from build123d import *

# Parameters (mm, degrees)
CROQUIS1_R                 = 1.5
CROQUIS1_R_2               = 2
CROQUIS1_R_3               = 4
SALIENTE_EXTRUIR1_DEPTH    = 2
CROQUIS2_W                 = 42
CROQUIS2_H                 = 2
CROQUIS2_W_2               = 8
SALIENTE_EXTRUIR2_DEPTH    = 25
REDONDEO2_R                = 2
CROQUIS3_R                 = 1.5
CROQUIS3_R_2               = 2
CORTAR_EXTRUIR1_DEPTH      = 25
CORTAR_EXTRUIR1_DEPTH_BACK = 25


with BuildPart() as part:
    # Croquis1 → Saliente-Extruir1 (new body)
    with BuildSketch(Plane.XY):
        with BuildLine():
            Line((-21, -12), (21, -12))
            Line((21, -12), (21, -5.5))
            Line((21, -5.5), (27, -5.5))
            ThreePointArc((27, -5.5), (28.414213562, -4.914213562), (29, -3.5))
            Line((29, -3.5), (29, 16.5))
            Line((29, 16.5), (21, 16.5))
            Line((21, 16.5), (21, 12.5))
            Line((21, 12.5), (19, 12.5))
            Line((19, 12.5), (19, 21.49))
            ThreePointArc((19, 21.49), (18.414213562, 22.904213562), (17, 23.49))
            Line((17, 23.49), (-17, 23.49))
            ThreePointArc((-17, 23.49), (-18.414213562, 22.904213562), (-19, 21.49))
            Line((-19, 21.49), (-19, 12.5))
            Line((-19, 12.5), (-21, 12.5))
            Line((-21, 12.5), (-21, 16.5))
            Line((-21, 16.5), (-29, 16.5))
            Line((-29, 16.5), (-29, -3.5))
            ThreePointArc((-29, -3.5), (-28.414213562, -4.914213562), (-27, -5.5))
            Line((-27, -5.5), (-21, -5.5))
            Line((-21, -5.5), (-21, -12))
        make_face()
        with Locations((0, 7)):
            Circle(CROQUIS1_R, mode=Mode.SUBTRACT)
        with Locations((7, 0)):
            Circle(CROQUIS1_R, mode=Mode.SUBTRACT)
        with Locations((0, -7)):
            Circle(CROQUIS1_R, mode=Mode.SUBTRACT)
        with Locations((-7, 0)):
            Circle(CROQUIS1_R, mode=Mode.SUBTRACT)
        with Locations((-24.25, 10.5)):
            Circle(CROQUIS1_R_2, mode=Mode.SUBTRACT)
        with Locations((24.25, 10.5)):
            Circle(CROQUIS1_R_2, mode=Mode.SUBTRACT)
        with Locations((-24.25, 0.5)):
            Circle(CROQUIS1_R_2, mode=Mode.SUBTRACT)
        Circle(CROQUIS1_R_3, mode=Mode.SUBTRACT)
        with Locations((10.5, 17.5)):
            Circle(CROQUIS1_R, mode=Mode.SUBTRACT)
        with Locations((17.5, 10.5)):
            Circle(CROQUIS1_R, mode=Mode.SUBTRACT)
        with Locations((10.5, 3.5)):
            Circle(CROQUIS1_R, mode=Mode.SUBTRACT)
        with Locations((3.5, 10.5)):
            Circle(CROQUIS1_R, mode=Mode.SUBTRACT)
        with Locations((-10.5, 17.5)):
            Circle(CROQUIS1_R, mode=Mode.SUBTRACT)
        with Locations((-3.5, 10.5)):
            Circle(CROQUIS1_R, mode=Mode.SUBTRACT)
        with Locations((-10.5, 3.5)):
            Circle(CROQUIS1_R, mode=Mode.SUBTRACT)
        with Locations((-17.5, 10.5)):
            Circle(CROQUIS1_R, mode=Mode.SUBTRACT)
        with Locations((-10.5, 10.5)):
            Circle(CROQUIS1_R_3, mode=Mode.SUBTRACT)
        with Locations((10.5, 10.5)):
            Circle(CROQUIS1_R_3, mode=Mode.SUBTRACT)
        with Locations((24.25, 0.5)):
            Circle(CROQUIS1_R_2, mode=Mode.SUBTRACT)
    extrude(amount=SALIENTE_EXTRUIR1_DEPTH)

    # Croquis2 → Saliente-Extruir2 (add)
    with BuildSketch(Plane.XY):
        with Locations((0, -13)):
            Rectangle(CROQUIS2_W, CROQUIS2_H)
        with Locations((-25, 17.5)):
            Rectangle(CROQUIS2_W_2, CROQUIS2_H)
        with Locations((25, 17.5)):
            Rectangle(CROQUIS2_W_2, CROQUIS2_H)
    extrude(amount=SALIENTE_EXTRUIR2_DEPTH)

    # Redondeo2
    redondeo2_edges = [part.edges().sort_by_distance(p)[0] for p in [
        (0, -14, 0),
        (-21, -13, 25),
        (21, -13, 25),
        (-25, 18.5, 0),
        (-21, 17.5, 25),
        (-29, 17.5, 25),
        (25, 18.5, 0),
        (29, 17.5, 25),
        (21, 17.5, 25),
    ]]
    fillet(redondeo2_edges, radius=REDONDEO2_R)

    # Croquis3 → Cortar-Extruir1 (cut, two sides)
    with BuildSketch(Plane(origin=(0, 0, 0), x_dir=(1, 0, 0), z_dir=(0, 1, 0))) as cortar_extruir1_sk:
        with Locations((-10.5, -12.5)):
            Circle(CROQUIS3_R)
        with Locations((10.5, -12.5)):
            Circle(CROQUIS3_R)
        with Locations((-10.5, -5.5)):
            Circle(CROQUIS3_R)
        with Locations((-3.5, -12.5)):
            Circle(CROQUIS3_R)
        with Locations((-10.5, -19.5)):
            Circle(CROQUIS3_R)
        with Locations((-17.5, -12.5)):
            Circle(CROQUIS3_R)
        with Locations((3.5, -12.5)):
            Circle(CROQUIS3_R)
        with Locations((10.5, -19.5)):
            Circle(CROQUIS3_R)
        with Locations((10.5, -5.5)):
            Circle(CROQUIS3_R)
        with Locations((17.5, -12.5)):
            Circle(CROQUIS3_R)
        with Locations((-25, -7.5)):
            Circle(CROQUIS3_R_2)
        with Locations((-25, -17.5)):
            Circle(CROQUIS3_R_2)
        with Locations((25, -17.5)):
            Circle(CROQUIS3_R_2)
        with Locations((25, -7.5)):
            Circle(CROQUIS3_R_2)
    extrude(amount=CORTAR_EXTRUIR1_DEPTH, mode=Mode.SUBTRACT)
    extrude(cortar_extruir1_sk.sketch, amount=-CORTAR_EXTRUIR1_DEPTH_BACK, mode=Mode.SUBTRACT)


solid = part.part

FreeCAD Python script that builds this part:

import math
import FreeCAD as App
import Part
import Sketcher
from FreeCAD import Vector


def edges_at(feature, points):
    """Names of the edges that pass closest to the given points."""
    edges = feature.Shape.Edges
    near = lambda p: min(range(len(edges)), key=lambda i: edges[i].distToShape(Part.Vertex(*p))[0])
    return sorted({f"Edge{near(p) + 1}" for p in points})


def add_polygon(sketch, points):
    """Adds a closed chain of lines whose ends are joined by coincident constraints."""
    first, n = sketch.GeometryCount, len(points)
    for a, b in zip(points, points[1:] + points[:1]):
        sketch.addGeometry(Part.LineSegment(App.Vector(*a, 0), App.Vector(*b, 0)), False)
    for i in range(n):
        sketch.addConstraint(Sketcher.Constraint("Coincident", first + i, 2, first + (i + 1) % n, 1))

doc = App.newDocument("Part")
params = doc.addObject("Spreadsheet::Sheet", "Params")
for row, (alias, value) in enumerate([
    ("sketch1_diameter", "4 mm"),
    ("sketch1_diameter2", "3 mm"),
    ("sketch1_diameter3", "8 mm"),
    ("sketch1_width", "42 mm"),
    ("sketch1_width2", "6 mm"),
    ("pad1_length", "2 mm"),
    ("sketch2_width", "42 mm"),
    ("sketch2_width2", "8 mm"),
    ("sketch2_height", "2 mm"),
    ("pad2_length", "25 mm"),
    ("fillet_radius", "2 mm"),
    ("sketch3_diameter", "3 mm"),
    ("sketch3_diameter2", "4 mm"),
], start=1):
    params.set(f"A{row}", alias)
    params.set(f"B{row}", "=" + value)
    params.setAlias(f"B{row}", alias)

body = doc.addObject("PartDesign::Body", "Body")

# Sketch on XY plane
sketch1 = body.newObject("Sketcher::SketchObject", "Sketch")
sketch1.AttachmentSupport = (doc.getObject("XY_Plane"), [""])
sketch1.MapMode = "FlatFace"
sketch1.addGeometry(Part.LineSegment(Vector(-21, -12, 0), Vector(21, -12, 0)), False)
sketch1.addGeometry(Part.LineSegment(Vector(21, -12, 0), Vector(21, -5.5, 0)), False)
sketch1.addGeometry(Part.LineSegment(Vector(21, -5.5, 0), Vector(27, -5.5, 0)), False)
sketch1.addGeometry(Part.ArcOfCircle(Part.Circle(Vector(27, -3.5, 0), Vector(0, 0, 1), 2), math.radians(-90), math.radians(0)), False)
sketch1.addGeometry(Part.LineSegment(Vector(29, -3.5, 0), Vector(29, 16.5, 0)), False)
sketch1.addGeometry(Part.LineSegment(Vector(29, 16.5, 0), Vector(21, 16.5, 0)), False)
sketch1.addGeometry(Part.LineSegment(Vector(21, 16.5, 0), Vector(21, 12.5, 0)), False)
sketch1.addGeometry(Part.LineSegment(Vector(21, 12.5, 0), Vector(19, 12.5, 0)), False)
sketch1.addGeometry(Part.LineSegment(Vector(19, 12.5, 0), Vector(19, 21.5, 0)), False)
sketch1.addGeometry(Part.ArcOfCircle(Part.Circle(Vector(17, 21.5, 0), Vector(0, 0, 1), 2), math.radians(0), math.radians(90)), False)
sketch1.addGeometry(Part.LineSegment(Vector(17, 23.5, 0), Vector(-17, 23.5, 0)), False)
sketch1.addGeometry(Part.ArcOfCircle(Part.Circle(Vector(-17, 21.5, 0), Vector(0, 0, 1), 2), math.radians(90), math.radians(180)), False)
sketch1.addGeometry(Part.LineSegment(Vector(-19, 21.5, 0), Vector(-19, 12.5, 0)), False)
sketch1.addGeometry(Part.LineSegment(Vector(-19, 12.5, 0), Vector(-21, 12.5, 0)), False)
sketch1.addGeometry(Part.LineSegment(Vector(-21, 12.5, 0), Vector(-21, 16.5, 0)), False)
sketch1.addGeometry(Part.LineSegment(Vector(-21, 16.5, 0), Vector(-29, 16.5, 0)), False)
sketch1.addGeometry(Part.LineSegment(Vector(-29, 16.5, 0), Vector(-29, -3.5, 0)), False)
sketch1.addGeometry(Part.ArcOfCircle(Part.Circle(Vector(-27, -3.5, 0), Vector(0, 0, 1), 2), math.radians(-180), math.radians(-90)), False)
sketch1.addGeometry(Part.LineSegment(Vector(-27, -5.5, 0), Vector(-21, -5.5, 0)), False)
sketch1.addGeometry(Part.LineSegment(Vector(-21, -5.5, 0), Vector(-21, -12, 0)), False)
sketch1.addGeometry(Part.Circle(Vector(-24.2, 0.5, 0), Vector(0, 0, 1), 2), False)
sketch1.addGeometry(Part.Circle(Vector(-7, 0, 0), Vector(0, 0, 1), 1.5), False)
sketch1.addGeometry(Part.Circle(Vector(-10.5, 3.5, 0), Vector(0, 0, 1), 1.5), False)
sketch1.addGeometry(Part.Circle(Vector(0, -7, 0), Vector(0, 0, 1), 1.5), False)
sketch1.addGeometry(Part.Circle(Vector(0, 0, 0), Vector(0, 0, 1), 4), False)
sketch1.addGeometry(Part.Circle(Vector(7, 0, 0), Vector(0, 0, 1), 1.5), False)
sketch1.addGeometry(Part.Circle(Vector(10.5, 3.5, 0), Vector(0, 0, 1), 1.5), False)
sketch1.addGeometry(Part.Circle(Vector(24.2, 0.5, 0), Vector(0, 0, 1), 2), False)
sketch1.addGeometry(Part.Circle(Vector(-24.2, 10.5, 0), Vector(0, 0, 1), 2), False)
sketch1.addGeometry(Part.Circle(Vector(-17.5, 10.5, 0), Vector(0, 0, 1), 1.5), False)
sketch1.addGeometry(Part.Circle(Vector(-10.5, 10.5, 0), Vector(0, 0, 1), 4), False)
sketch1.addGeometry(Part.Circle(Vector(-3.5, 10.5, 0), Vector(0, 0, 1), 1.5), False)
sketch1.addGeometry(Part.Circle(Vector(-10.5, 17.5, 0), Vector(0, 0, 1), 1.5), False)
sketch1.addGeometry(Part.Circle(Vector(0, 7, 0), Vector(0, 0, 1), 1.5), False)
sketch1.addGeometry(Part.Circle(Vector(3.5, 10.5, 0), Vector(0, 0, 1), 1.5), False)
sketch1.addGeometry(Part.Circle(Vector(10.5, 10.5, 0), Vector(0, 0, 1), 4), False)
sketch1.addGeometry(Part.Circle(Vector(17.5, 10.5, 0), Vector(0, 0, 1), 1.5), False)
sketch1.addGeometry(Part.Circle(Vector(24.2, 10.5, 0), Vector(0, 0, 1), 2), False)
sketch1.addGeometry(Part.Circle(Vector(10.5, 17.5, 0), Vector(0, 0, 1), 1.5), False)
sketch1.addConstraint(Sketcher.Constraint("Coincident", 0, 2, 1, 1))
sketch1.addConstraint(Sketcher.Constraint("Coincident", 1, 2, 2, 1))
sketch1.addConstraint(Sketcher.Constraint("Tangent", 2, 2, 3, 1))
sketch1.addConstraint(Sketcher.Constraint("Tangent", 3, 2, 4, 1))
sketch1.addConstraint(Sketcher.Constraint("Coincident", 4, 2, 5, 1))
sketch1.addConstraint(Sketcher.Constraint("Coincident", 5, 2, 6, 1))
sketch1.addConstraint(Sketcher.Constraint("Coincident", 6, 2, 7, 1))
sketch1.addConstraint(Sketcher.Constraint("Coincident", 7, 2, 8, 1))
sketch1.addConstraint(Sketcher.Constraint("Tangent", 8, 2, 9, 1))
sketch1.addConstraint(Sketcher.Constraint("Tangent", 9, 2, 10, 1))
sketch1.addConstraint(Sketcher.Constraint("Tangent", 10, 2, 11, 1))
sketch1.addConstraint(Sketcher.Constraint("Tangent", 11, 2, 12, 1))
sketch1.addConstraint(Sketcher.Constraint("Coincident", 12, 2, 13, 1))
sketch1.addConstraint(Sketcher.Constraint("Coincident", 13, 2, 14, 1))
sketch1.addConstraint(Sketcher.Constraint("Coincident", 14, 2, 15, 1))
sketch1.addConstraint(Sketcher.Constraint("Coincident", 15, 2, 16, 1))
sketch1.addConstraint(Sketcher.Constraint("Tangent", 16, 2, 17, 1))
sketch1.addConstraint(Sketcher.Constraint("Tangent", 17, 2, 18, 1))
sketch1.addConstraint(Sketcher.Constraint("Coincident", 18, 2, 19, 1))
sketch1.addConstraint(Sketcher.Constraint("Coincident", 19, 2, 0, 1))
sketch1.addConstraint(Sketcher.Constraint("Horizontal", 0))
sketch1.addConstraint(Sketcher.Constraint("Vertical", 1))
sketch1.addConstraint(Sketcher.Constraint("Horizontal", 2))
sketch1.addConstraint(Sketcher.Constraint("Vertical", 4))
sketch1.addConstraint(Sketcher.Constraint("Horizontal", 5))
sketch1.addConstraint(Sketcher.Constraint("Vertical", 6))
sketch1.addConstraint(Sketcher.Constraint("Horizontal", 7))
sketch1.addConstraint(Sketcher.Constraint("Vertical", 8))
sketch1.addConstraint(Sketcher.Constraint("Horizontal", 10))
sketch1.addConstraint(Sketcher.Constraint("Vertical", 12))
sketch1.addConstraint(Sketcher.Constraint("Horizontal", 13))
sketch1.addConstraint(Sketcher.Constraint("Vertical", 14))
sketch1.addConstraint(Sketcher.Constraint("Horizontal", 15))
sketch1.addConstraint(Sketcher.Constraint("Vertical", 16))
sketch1.addConstraint(Sketcher.Constraint("Horizontal", 18))
sketch1.addConstraint(Sketcher.Constraint("Vertical", 19))
sketch1.addConstraint(Sketcher.Constraint("Coincident", 24, 3, -1, 1))
sketch1.addConstraint(Sketcher.Constraint("Equal", 3, 9))
sketch1.addConstraint(Sketcher.Constraint("Equal", 9, 11))
sketch1.addConstraint(Sketcher.Constraint("Equal", 11, 17))
sketch1.addConstraint(Sketcher.Constraint("Equal", 17, 20))
sketch1.addConstraint(Sketcher.Constraint("Equal", 21, 22))
sketch1.addConstraint(Sketcher.Constraint("Equal", 22, 23))
sketch1.addConstraint(Sketcher.Constraint("Equal", 23, 25))
sketch1.addConstraint(Sketcher.Constraint("Equal", 25, 26))
sketch1.addConstraint(Sketcher.Constraint("Equal", 20, 27))
sketch1.addConstraint(Sketcher.Constraint("Equal", 27, 28))
sketch1.addConstraint(Sketcher.Constraint("Equal", 26, 29))
sketch1.addConstraint(Sketcher.Constraint("Equal", 24, 30))
sketch1.addConstraint(Sketcher.Constraint("Equal", 29, 31))
sketch1.addConstraint(Sketcher.Constraint("Equal", 31, 32))
sketch1.addConstraint(Sketcher.Constraint("Equal", 32, 33))
sketch1.addConstraint(Sketcher.Constraint("Equal", 33, 34))
sketch1.addConstraint(Sketcher.Constraint("Equal", 30, 35))
sketch1.addConstraint(Sketcher.Constraint("Equal", 34, 36))
sketch1.addConstraint(Sketcher.Constraint("Equal", 28, 37))
sketch1.addConstraint(Sketcher.Constraint("Equal", 36, 38))
sketch1.addConstraint(Sketcher.Constraint("Symmetric", 21, 3, 25, 3, -1, 1))
sketch1.addConstraint(Sketcher.Constraint("Symmetric", 23, 3, 33, 3, -1, 1))
sketch1.addConstraint(Sketcher.Constraint("Symmetric", 3, 3, 17, 3, -2))
sketch1.addConstraint(Sketcher.Constraint("Symmetric", 22, 3, 26, 3, -2))
sketch1.addConstraint(Sketcher.Constraint("Symmetric", 20, 3, 27, 3, -2))
sketch1.addConstraint(Sketcher.Constraint("Symmetric", 31, 3, 34, 3, -2))
sketch1.addConstraint(Sketcher.Constraint("Symmetric", 30, 3, 35, 3, -2))
sketch1.addConstraint(Sketcher.Constraint("Symmetric", 29, 3, 36, 3, -2))
sketch1.addConstraint(Sketcher.Constraint("Symmetric", 28, 3, 37, 3, -2))
sketch1.addConstraint(Sketcher.Constraint("Symmetric", 32, 3, 38, 3, -2))
sketch1.addConstraint(Sketcher.Constraint("Symmetric", 7, 2, 12, 2, -2))
sketch1.addConstraint(Sketcher.Constraint("Symmetric", 5, 2, 14, 2, -2))
sketch1.addConstraint(Sketcher.Constraint("PointOnObject", 21, 3, -1))
sketch1.addConstraint(Sketcher.Constraint("PointOnObject", 23, 3, -2))
sketch1.addConstraint(Sketcher.Constraint("Horizontal", 28, 3, 29, 3))
sketch1.addConstraint(Sketcher.Constraint("Horizontal", 29, 3, 30, 3))
sketch1.addConstraint(Sketcher.Constraint("Horizontal", 30, 3, 31, 3))
sketch1.addConstraint(Sketcher.Constraint("Vertical", 20, 3, 28, 3))
sketch1.addConstraint(Sketcher.Constraint("Vertical", 22, 3, 30, 3))
sketch1.addConstraint(Sketcher.Constraint("Vertical", 30, 3, 32, 3))
sketch1.addConstraint(Sketcher.Constraint("Vertical", 1, 2, 5, 2))
sketch1.addConstraint(Sketcher.Constraint("Vertical", 14, 2, 18, 2))
sketch1.addConstraint(Sketcher.Constraint("Diameter", 20, 4.0))
sketch1.addConstraint(Sketcher.Constraint("Diameter", 21, 3.0))
sketch1.addConstraint(Sketcher.Constraint("Diameter", 24, 8.0))
sketch1.addConstraint(Sketcher.Constraint("DistanceX", 0, 1, 0, 2, 42.0))
sketch1.addConstraint(Sketcher.Constraint("DistanceX", 2, 1, 2, 2, 6.0))
sketch1.addConstraint(Sketcher.Constraint("DistanceX", 7, 2, 7, 1, 2.0))
sketch1.addConstraint(Sketcher.Constraint("DistanceY", 4, 1, 4, 2, 20.0))
sketch1.addConstraint(Sketcher.Constraint("DistanceY", 6, 2, 6, 1, 4.0))
sketch1.addConstraint(Sketcher.Constraint("DistanceY", 1, 1, 1, 2, 6.5))
sketch1.addConstraint(Sketcher.Constraint("DistanceX", 21, 3, -1, 1, 7.0))
sketch1.addConstraint(Sketcher.Constraint("DistanceY", 23, 3, -1, 1, 7.0))
sketch1.addConstraint(Sketcher.Constraint("DistanceY", 0, 2, -1, 1, 12.0))
sketch1.addConstraint(Sketcher.Constraint("DistanceY", 17, 3, 20, 3, 4.0))
sketch1.addConstraint(Sketcher.Constraint("DistanceY", 20, 3, 22, 3, 3.0))
sketch1.addConstraint(Sketcher.Constraint("DistanceY", 20, 3, 28, 3, 10.0))
sketch1.addConstraint(Sketcher.Constraint("DistanceX", 29, 3, 22, 3, 7.0))
sketch1.addConstraint(Sketcher.Constraint("DistanceX", 30, 3, 31, 3, 7.0))
sketch1.addConstraint(Sketcher.Constraint("DistanceY", 30, 3, 32, 3, 7.0))
sketch1.addConstraint(Sketcher.Constraint("DistanceX", 31, 3, 34, 3, 7.0))
sketch1.addConstraint(Sketcher.Constraint("DistanceY", 8, 1, 8, 2, 8.99))
sketch1.addConstraint(Sketcher.Constraint("DistanceX", 20, 3, -1, 1, 24.25))
sketch1.setExpression("Constraints[79]", "Params.sketch1_diameter")
sketch1.setExpression("Constraints[80]", "Params.sketch1_diameter2")
sketch1.setExpression("Constraints[81]", "Params.sketch1_diameter3")
sketch1.setExpression("Constraints[82]", "Params.sketch1_width")
sketch1.setExpression("Constraints[83]", "Params.sketch1_width2")
pad1 = body.newObject("PartDesign::Pad", "Pad")
pad1.Profile = sketch1
pad1.setExpression("Length", "Params.pad1_length")

# Sketch on XY plane
sketch2 = body.newObject("Sketcher::SketchObject", "Sketch001")
sketch2.AttachmentSupport = (doc.getObject("XY_Plane"), [""])
sketch2.MapMode = "FlatFace"
add_polygon(sketch2, [(-21, -12), (-21, -14), (21, -14), (21, -12)])  # lines 0-3
add_polygon(sketch2, [(-29, 18.5), (-29, 16.5), (-21, 16.5), (-21, 18.5)])  # lines 4-7
add_polygon(sketch2, [(21, 18.5), (21, 16.5), (29, 16.5), (29, 18.5)])  # lines 8-11
sketch2.addConstraint(Sketcher.Constraint("Vertical", 0))
sketch2.addConstraint(Sketcher.Constraint("Horizontal", 1))
sketch2.addConstraint(Sketcher.Constraint("Vertical", 2))
sketch2.addConstraint(Sketcher.Constraint("Horizontal", 3))
sketch2.addConstraint(Sketcher.Constraint("Vertical", 4))
sketch2.addConstraint(Sketcher.Constraint("Horizontal", 5))
sketch2.addConstraint(Sketcher.Constraint("Vertical", 6))
sketch2.addConstraint(Sketcher.Constraint("Horizontal", 7))
sketch2.addConstraint(Sketcher.Constraint("Vertical", 8))
sketch2.addConstraint(Sketcher.Constraint("Horizontal", 9))
sketch2.addConstraint(Sketcher.Constraint("Vertical", 10))
sketch2.addConstraint(Sketcher.Constraint("Horizontal", 11))
sketch2.addConstraint(Sketcher.Constraint("Symmetric", 5, 2, 8, 2, -2))
sketch2.addConstraint(Sketcher.Constraint("Symmetric", 7, 2, 10, 2, -2))
sketch2.addConstraint(Sketcher.Constraint("Vertical", 3, 2, 5, 2))
sketch2.addConstraint(Sketcher.Constraint("Vertical", 2, 2, 8, 2))
sketch2.addConstraint(Sketcher.Constraint("Equal", 2, 4))
sketch2.addConstraint(Sketcher.Constraint("DistanceX", 1, 1, 1, 2, 42.0))
sketch2.addConstraint(Sketcher.Constraint("DistanceX", 5, 1, 5, 2, 8.0))
sketch2.addConstraint(Sketcher.Constraint("DistanceY", 0, 2, 0, 1, 2.0))
sketch2.addConstraint(Sketcher.Constraint("DistanceY", 0, 2, -1, 1, 14.0))
sketch2.addConstraint(Sketcher.Constraint("DistanceY", -1, 1, 4, 2, 16.5))
sketch2.setExpression("Constraints[29]", "Params.sketch2_width")
sketch2.setExpression("Constraints[30]", "Params.sketch2_width2")
sketch2.setExpression("Constraints[31]", "Params.sketch2_height")
pad2 = body.newObject("PartDesign::Pad", "Pad001")
pad2.Profile = sketch2
pad2.setExpression("Length", "Params.pad2_length")
doc.recompute()

fillet = body.newObject("PartDesign::Fillet", "Fillet")
fillet.Base = (pad2, edges_at(pad2, [
    (0, -14, 0),
    (-21, -13, 25),
    (21, -13, 25),
    (-25, 18.5, 0),
    (-21, 17.5, 25),
    (-29, 17.5, 25),
    (25, 18.5, 0),
    (29, 17.5, 25),
    (21, 17.5, 25),
]))
fillet.setExpression("Radius", "Params.fillet_radius")

# Sketch on XZ plane
sketch3 = body.newObject("Sketcher::SketchObject", "Sketch002")
sketch3.AttachmentSupport = (doc.getObject("XZ_Plane"), [""])
sketch3.MapMode = "FlatFace"
sketch3.addGeometry(Part.Circle(Vector(-10.5, 12.5, 0), Vector(0, 0, 1), 1.5), False)
sketch3.addGeometry(Part.Circle(Vector(10.5, 12.5, 0), Vector(0, 0, 1), 1.5), False)
sketch3.addGeometry(Part.Circle(Vector(-10.5, 5.5, 0), Vector(0, 0, 1), 1.5), False)
sketch3.addGeometry(Part.Circle(Vector(-3.5, 12.5, 0), Vector(0, 0, 1), 1.5), False)
sketch3.addGeometry(Part.Circle(Vector(-10.5, 19.5, 0), Vector(0, 0, 1), 1.5), False)
sketch3.addGeometry(Part.Circle(Vector(-17.5, 12.5, 0), Vector(0, 0, 1), 1.5), False)
sketch3.addGeometry(Part.Circle(Vector(3.5, 12.5, 0), Vector(0, 0, 1), 1.5), False)
sketch3.addGeometry(Part.Circle(Vector(10.5, 19.5, 0), Vector(0, 0, 1), 1.5), False)
sketch3.addGeometry(Part.Circle(Vector(10.5, 5.5, 0), Vector(0, 0, 1), 1.5), False)
sketch3.addGeometry(Part.Circle(Vector(17.5, 12.5, 0), Vector(0, 0, 1), 1.5), False)
sketch3.addGeometry(Part.Circle(Vector(-25, 7.5, 0), Vector(0, 0, 1), 2), False)
sketch3.addGeometry(Part.Circle(Vector(-25, 17.5, 0), Vector(0, 0, 1), 2), False)
sketch3.addGeometry(Part.Circle(Vector(25, 17.5, 0), Vector(0, 0, 1), 2), False)
sketch3.addGeometry(Part.Circle(Vector(25, 7.5, 0), Vector(0, 0, 1), 2), False)
sketch3.addConstraint(Sketcher.Constraint("Equal", 0, 1))
sketch3.addConstraint(Sketcher.Constraint("Equal", 1, 2))
sketch3.addConstraint(Sketcher.Constraint("Equal", 2, 3))
sketch3.addConstraint(Sketcher.Constraint("Equal", 3, 4))
sketch3.addConstraint(Sketcher.Constraint("Equal", 4, 5))
sketch3.addConstraint(Sketcher.Constraint("Equal", 5, 6))
sketch3.addConstraint(Sketcher.Constraint("Equal", 6, 7))
sketch3.addConstraint(Sketcher.Constraint("Equal", 7, 8))
sketch3.addConstraint(Sketcher.Constraint("Equal", 8, 9))
sketch3.addConstraint(Sketcher.Constraint("Equal", 10, 11))
sketch3.addConstraint(Sketcher.Constraint("Equal", 11, 12))
sketch3.addConstraint(Sketcher.Constraint("Equal", 12, 13))
sketch3.addConstraint(Sketcher.Constraint("Symmetric", 0, 3, 1, 3, -2))
sketch3.addConstraint(Sketcher.Constraint("Symmetric", 3, 3, 6, 3, -2))
sketch3.addConstraint(Sketcher.Constraint("Symmetric", 4, 3, 7, 3, -2))
sketch3.addConstraint(Sketcher.Constraint("Symmetric", 2, 3, 8, 3, -2))
sketch3.addConstraint(Sketcher.Constraint("Symmetric", 5, 3, 9, 3, -2))
sketch3.addConstraint(Sketcher.Constraint("Symmetric", 11, 3, 12, 3, -2))
sketch3.addConstraint(Sketcher.Constraint("Symmetric", 10, 3, 13, 3, -2))
sketch3.addConstraint(Sketcher.Constraint("Horizontal", 1, 3, 3, 3))
sketch3.addConstraint(Sketcher.Constraint("Horizontal", 3, 3, 5, 3))
sketch3.addConstraint(Sketcher.Constraint("Vertical", 0, 3, 2, 3))
sketch3.addConstraint(Sketcher.Constraint("Vertical", 2, 3, 4, 3))
sketch3.addConstraint(Sketcher.Constraint("Vertical", 10, 3, 11, 3))
sketch3.addConstraint(Sketcher.Constraint("Diameter", 0, 3.0))
sketch3.addConstraint(Sketcher.Constraint("Diameter", 10, 4.0))
sketch3.addConstraint(Sketcher.Constraint("DistanceX", 10, 3, -1, 1, 25.0))
sketch3.addConstraint(Sketcher.Constraint("DistanceX", 0, 3, 1, 3, 21.0))
sketch3.addConstraint(Sketcher.Constraint("DistanceY", 2, 3, 0, 3, 7.0))
sketch3.addConstraint(Sketcher.Constraint("DistanceX", 0, 3, 3, 3, 7.0))
sketch3.addConstraint(Sketcher.Constraint("DistanceY", 0, 3, 4, 3, 7.0))
sketch3.addConstraint(Sketcher.Constraint("DistanceX", 5, 3, 0, 3, 7.0))
sketch3.addConstraint(Sketcher.Constraint("DistanceY", 10, 3, 5, 3, 5.0))
sketch3.addConstraint(Sketcher.Constraint("DistanceY", 5, 3, 11, 3, 5.0))
sketch3.addConstraint(Sketcher.Constraint("DistanceY", -1, 1, 0, 3, 12.5))
sketch3.setExpression("Constraints[24]", "Params.sketch3_diameter")
sketch3.setExpression("Constraints[25]", "Params.sketch3_diameter2")
pocket1 = body.newObject("PartDesign::Pocket", "Pocket")
pocket1.Profile = sketch3
pocket1.Type = "ThroughAll"
pocket1.Midplane = True

doc.recompute()
